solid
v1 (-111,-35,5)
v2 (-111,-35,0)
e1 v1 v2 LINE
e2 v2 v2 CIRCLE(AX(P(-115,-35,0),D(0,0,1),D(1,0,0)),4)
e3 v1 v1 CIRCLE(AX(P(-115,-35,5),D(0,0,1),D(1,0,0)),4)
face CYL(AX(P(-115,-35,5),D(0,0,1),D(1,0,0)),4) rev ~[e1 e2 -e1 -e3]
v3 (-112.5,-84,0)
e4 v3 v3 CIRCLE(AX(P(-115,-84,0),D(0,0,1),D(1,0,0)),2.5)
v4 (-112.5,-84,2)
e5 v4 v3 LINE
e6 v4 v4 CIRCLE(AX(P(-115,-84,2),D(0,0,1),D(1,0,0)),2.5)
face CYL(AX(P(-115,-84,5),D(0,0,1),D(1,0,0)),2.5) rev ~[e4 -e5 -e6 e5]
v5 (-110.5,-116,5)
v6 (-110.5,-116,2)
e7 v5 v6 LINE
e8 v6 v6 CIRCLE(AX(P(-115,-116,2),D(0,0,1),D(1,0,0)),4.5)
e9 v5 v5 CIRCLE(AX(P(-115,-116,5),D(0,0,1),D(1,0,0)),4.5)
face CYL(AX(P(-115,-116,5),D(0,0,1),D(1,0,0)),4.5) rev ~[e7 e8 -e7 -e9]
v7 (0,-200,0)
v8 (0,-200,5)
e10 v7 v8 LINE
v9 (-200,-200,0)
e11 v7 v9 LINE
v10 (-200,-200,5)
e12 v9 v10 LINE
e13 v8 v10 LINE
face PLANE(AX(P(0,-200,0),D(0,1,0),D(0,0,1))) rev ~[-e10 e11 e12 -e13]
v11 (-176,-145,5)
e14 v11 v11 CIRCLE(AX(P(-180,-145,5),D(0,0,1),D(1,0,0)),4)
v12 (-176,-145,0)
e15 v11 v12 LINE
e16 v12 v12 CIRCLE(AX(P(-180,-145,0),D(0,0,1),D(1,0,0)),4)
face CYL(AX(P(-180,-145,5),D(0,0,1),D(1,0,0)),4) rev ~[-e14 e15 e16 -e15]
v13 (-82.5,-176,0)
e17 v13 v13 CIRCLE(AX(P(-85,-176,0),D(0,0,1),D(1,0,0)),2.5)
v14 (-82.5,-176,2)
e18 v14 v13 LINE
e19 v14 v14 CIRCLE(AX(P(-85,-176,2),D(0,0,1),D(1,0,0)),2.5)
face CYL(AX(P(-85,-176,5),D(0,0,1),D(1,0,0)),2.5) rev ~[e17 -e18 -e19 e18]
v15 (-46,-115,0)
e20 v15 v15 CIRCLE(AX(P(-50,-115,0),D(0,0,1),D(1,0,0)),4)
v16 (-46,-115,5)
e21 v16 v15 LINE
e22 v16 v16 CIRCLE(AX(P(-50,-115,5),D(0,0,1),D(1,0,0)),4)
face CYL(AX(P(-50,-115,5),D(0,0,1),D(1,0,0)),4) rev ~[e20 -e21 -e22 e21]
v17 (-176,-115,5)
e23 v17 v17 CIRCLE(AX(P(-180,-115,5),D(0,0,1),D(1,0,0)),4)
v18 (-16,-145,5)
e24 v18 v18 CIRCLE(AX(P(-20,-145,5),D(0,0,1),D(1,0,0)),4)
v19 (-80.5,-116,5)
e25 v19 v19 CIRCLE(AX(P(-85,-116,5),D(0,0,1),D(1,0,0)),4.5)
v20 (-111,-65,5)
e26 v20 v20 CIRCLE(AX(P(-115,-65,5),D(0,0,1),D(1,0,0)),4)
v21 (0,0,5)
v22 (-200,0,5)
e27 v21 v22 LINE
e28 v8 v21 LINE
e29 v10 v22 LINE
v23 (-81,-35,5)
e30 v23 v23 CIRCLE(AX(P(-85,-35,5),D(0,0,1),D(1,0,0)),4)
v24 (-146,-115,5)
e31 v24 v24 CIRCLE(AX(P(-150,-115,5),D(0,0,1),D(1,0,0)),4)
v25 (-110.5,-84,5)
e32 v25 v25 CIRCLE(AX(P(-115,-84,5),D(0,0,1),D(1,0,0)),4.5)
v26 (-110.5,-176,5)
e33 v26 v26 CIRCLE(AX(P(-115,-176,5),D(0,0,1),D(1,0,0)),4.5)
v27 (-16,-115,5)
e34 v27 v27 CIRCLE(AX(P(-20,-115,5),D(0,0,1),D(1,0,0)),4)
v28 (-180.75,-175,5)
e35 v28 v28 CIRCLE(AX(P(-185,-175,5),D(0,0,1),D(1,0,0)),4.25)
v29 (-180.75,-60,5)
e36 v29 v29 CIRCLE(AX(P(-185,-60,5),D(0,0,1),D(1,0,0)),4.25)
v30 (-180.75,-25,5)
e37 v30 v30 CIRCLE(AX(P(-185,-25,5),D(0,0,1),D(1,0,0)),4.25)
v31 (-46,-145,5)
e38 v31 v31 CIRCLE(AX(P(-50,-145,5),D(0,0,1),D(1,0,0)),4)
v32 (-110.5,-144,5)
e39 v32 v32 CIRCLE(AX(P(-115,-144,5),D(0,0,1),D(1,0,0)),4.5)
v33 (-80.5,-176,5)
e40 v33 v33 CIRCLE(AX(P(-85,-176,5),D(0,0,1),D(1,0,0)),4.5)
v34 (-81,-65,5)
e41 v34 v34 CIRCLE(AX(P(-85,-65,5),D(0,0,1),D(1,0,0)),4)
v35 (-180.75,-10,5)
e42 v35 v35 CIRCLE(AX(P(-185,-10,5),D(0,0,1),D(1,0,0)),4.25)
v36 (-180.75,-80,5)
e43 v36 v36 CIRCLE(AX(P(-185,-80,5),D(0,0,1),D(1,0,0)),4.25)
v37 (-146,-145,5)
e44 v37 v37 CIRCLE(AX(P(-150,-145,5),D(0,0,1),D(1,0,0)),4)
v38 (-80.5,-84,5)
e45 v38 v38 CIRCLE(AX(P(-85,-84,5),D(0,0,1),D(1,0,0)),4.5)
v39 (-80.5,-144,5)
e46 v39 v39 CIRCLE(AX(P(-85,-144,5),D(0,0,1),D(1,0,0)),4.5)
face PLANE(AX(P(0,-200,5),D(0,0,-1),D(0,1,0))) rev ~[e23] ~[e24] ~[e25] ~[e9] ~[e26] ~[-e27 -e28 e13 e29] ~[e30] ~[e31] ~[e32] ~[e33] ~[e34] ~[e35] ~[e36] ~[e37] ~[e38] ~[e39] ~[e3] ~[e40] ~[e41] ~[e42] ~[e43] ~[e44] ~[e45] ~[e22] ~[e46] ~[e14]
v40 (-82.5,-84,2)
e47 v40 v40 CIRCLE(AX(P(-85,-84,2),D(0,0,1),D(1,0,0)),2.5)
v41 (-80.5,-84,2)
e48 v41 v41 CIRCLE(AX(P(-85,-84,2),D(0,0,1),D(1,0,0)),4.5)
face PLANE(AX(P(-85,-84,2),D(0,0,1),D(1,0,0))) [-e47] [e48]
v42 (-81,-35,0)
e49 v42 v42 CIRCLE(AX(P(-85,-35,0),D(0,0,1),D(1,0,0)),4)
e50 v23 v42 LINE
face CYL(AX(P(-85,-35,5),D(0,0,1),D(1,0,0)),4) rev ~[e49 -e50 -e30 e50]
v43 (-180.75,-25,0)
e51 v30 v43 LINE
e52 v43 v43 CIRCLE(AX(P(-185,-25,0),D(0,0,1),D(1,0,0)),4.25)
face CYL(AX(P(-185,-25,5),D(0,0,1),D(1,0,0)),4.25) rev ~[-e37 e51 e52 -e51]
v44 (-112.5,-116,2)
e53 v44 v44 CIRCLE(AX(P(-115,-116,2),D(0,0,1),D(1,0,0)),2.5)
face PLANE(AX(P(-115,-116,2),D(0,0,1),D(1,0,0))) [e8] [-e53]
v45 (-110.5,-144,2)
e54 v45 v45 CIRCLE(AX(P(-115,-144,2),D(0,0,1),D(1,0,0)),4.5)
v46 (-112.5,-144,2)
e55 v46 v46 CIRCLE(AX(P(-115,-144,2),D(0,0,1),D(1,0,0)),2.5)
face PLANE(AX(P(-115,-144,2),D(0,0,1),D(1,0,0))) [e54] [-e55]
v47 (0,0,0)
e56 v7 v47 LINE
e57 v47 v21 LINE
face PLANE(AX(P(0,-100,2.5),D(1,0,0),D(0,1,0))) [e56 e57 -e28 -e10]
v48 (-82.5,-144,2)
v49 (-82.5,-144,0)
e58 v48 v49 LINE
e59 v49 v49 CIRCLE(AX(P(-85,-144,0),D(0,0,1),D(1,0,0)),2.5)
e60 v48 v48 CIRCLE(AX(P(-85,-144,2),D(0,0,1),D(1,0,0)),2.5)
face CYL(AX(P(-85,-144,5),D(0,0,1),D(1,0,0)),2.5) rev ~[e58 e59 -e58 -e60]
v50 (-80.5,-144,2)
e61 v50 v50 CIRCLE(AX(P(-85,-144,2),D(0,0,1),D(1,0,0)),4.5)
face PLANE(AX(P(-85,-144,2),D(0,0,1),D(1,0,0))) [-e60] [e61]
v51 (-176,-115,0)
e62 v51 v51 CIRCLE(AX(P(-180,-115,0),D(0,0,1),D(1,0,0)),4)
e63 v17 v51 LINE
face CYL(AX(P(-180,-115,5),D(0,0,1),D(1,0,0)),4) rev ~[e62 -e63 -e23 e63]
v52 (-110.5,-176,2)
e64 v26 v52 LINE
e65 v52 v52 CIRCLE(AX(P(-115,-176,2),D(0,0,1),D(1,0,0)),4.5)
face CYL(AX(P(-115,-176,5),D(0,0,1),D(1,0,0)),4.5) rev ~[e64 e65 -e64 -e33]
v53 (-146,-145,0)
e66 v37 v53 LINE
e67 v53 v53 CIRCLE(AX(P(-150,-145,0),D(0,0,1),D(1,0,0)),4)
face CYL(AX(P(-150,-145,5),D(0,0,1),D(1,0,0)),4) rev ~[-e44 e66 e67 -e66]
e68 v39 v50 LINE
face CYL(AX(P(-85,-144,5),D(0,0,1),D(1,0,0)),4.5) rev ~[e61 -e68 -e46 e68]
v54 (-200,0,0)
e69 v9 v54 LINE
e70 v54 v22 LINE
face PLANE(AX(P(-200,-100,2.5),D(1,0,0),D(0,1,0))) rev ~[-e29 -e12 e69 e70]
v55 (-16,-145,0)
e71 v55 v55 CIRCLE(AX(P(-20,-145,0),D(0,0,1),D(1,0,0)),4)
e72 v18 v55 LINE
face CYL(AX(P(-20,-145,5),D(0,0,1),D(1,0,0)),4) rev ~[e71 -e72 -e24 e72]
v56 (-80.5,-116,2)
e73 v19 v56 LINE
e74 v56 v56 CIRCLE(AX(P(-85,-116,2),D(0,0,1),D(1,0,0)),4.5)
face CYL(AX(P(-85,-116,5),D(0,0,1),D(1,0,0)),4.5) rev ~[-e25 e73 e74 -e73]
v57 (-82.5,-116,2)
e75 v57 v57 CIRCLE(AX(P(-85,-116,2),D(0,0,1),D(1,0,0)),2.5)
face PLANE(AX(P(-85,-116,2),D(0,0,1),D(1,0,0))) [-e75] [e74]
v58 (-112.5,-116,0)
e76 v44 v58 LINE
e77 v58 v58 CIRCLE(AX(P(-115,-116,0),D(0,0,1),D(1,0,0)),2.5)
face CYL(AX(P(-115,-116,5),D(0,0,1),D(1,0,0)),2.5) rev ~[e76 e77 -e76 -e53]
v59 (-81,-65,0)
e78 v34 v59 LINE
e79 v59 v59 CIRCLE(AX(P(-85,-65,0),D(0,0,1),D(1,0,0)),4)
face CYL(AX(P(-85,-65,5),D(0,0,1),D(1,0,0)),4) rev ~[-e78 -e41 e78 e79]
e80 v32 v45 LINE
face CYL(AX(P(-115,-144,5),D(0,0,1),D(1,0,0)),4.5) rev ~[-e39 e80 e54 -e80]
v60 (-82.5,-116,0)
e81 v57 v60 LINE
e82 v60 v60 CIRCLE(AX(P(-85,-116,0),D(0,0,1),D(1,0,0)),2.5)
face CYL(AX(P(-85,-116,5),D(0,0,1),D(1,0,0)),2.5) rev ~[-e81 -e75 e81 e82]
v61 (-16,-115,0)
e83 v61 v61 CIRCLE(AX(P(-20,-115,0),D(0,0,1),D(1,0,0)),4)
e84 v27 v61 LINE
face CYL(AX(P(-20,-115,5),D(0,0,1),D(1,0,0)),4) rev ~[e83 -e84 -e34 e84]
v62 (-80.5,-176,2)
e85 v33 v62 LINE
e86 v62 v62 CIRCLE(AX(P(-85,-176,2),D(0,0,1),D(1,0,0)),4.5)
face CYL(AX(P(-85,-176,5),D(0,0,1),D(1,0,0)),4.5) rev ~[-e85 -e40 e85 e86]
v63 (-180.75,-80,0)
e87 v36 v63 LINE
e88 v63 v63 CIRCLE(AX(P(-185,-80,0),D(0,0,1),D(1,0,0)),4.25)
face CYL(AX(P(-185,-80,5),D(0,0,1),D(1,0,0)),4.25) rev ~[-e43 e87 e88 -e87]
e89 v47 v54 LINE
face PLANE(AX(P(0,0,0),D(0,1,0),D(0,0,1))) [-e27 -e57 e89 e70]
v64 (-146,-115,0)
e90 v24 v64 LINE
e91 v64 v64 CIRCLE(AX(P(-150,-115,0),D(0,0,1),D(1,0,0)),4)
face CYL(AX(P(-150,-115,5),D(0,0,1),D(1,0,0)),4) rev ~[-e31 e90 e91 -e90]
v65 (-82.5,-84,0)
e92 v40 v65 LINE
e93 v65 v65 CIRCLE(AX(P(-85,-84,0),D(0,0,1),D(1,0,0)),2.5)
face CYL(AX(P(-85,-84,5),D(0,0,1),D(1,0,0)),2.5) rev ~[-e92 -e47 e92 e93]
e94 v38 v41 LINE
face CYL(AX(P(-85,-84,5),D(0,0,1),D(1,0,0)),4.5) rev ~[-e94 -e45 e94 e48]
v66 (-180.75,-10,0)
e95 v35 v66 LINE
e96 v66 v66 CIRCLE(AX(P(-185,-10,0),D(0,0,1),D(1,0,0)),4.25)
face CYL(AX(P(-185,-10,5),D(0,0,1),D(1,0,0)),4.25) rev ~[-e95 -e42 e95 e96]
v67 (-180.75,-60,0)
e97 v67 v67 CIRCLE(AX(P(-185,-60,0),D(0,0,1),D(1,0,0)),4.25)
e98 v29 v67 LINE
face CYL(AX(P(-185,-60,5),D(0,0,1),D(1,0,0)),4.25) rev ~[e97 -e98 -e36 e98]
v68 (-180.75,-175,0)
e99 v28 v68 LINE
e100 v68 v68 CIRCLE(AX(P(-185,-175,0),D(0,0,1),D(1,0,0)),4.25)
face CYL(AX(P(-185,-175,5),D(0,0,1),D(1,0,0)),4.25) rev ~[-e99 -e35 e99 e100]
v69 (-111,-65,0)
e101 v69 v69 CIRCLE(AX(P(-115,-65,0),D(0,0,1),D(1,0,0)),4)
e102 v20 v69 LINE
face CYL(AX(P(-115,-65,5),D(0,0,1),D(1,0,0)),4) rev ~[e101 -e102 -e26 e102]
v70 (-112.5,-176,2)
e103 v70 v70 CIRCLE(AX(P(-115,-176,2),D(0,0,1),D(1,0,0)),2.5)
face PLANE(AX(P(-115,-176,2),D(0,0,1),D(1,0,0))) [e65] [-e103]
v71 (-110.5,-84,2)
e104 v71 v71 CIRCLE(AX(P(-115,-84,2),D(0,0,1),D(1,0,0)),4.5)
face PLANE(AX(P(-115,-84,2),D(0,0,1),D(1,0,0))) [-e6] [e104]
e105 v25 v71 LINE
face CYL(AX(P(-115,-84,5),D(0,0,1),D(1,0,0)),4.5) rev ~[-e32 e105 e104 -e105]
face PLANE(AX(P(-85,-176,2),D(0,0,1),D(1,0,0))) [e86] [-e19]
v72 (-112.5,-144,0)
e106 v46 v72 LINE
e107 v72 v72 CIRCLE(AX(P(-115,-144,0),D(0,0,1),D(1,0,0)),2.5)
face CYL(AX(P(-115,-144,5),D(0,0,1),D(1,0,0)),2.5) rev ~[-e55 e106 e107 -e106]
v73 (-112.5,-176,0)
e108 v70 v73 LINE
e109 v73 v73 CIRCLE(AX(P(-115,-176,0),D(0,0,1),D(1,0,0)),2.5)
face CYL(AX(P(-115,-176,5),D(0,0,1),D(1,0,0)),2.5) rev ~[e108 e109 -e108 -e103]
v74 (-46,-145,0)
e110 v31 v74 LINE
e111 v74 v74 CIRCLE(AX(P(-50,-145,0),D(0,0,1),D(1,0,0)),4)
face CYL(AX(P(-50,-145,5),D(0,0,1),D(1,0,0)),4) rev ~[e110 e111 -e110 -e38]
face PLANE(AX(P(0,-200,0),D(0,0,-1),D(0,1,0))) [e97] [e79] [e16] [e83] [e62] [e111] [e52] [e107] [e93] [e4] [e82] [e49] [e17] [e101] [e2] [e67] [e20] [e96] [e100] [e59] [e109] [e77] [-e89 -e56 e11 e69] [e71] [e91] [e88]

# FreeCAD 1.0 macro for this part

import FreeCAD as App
import Part
import Sketcher

V = App.Vector


def add_polygon(sketch, points):
    """Adds a closed chain of lines whose ends are joined by coincident constraints."""
    first, n = sketch.GeometryCount, len(points)
    for a, b in zip(points, points[1:] + points[:1]):
        sketch.addGeometry(Part.LineSegment(App.Vector(*a, 0), App.Vector(*b, 0)), False)
    for i in range(n):
        sketch.addConstraint(Sketcher.Constraint("Coincident", first + i, 2, first + (i + 1) % n, 1))

doc = App.newDocument("Part")
body = doc.addObject("PartDesign::Body", "Body")

# Sketch on YZ plane
sketch1 = body.newObject("Sketcher::SketchObject", "Sketch")
sketch1.AttachmentSupport = (doc.getObject("YZ_Plane"), [""])
sketch1.MapMode = "FlatFace"
add_polygon(sketch1, [(-200, 5), (-200, 0), (0, 0), (0, 5)])  # lines 0-3
sketch1.addConstraint([
    Sketcher.Constraint("Vertical", 0),
    Sketcher.Constraint("Horizontal", 1),
    Sketcher.Constraint("Vertical", 2),
    Sketcher.Constraint("Horizontal", 3),
    Sketcher.Constraint("Coincident", 1, 2, -1, 1),
    Sketcher.Constraint("DistanceX", 1, 1, 1, 2, 200.0),
    Sketcher.Constraint("DistanceY", 0, 2, 0, 1, 5.0),
])
pad1 = body.newObject("PartDesign::Pad", "Pad")
pad1.Profile = sketch1
pad1.Length = 200
pad1.Reversed = True

# Sketch on XY plane
sketch2 = body.newObject("Sketcher::SketchObject", "Sketch001")
sketch2.AttachmentSupport = (doc.getObject("XY_Plane"), [""])
sketch2.MapMode = "FlatFace"
sketch2.AttachmentOffset = App.Placement(V(0, 0, 5), App.Rotation())
sketch2.addGeometry([
    Part.Circle(V(-85, -84, 0), V(0, 0, 1), 2.5),  # 0
    Part.Circle(V(-115, -84, 0), V(0, 0, 1), 2.5),  # 1
    Part.Circle(V(-85, -116, 0), V(0, 0, 1), 2.5),  # 2
    Part.Circle(V(-115, -116, 0), V(0, 0, 1), 2.5),  # 3
    Part.Circle(V(-85, -144, 0), V(0, 0, 1), 2.5),  # 4
    Part.Circle(V(-115, -144, 0), V(0, 0, 1), 2.5),  # 5
    Part.Circle(V(-85, -176, 0), V(0, 0, 1), 2.5),  # 6
    Part.Circle(V(-115, -176, 0), V(0, 0, 1), 2.5),  # 7
], False)
sketch2.addConstraint([
    Sketcher.Constraint("Equal", 0, 1),
    Sketcher.Constraint("Equal", 1, 2),
    Sketcher.Constraint("Equal", 2, 3),
    Sketcher.Constraint("Equal", 3, 4),
    Sketcher.Constraint("Equal", 4, 5),
    Sketcher.Constraint("Equal", 5, 6),
    Sketcher.Constraint("Equal", 6, 7),
    Sketcher.Constraint("Horizontal", 0, 3, 1, 3),
    Sketcher.Constraint("Horizontal", 2, 3, 3, 3),
    Sketcher.Constraint("Horizontal", 4, 3, 5, 3),
    Sketcher.Constraint("Horizontal", 6, 3, 7, 3),
    Sketcher.Constraint("Vertical", 0, 3, 2, 3),
    Sketcher.Constraint("Vertical", 1, 3, 3, 3),
    Sketcher.Constraint("Vertical", 2, 3, 4, 3),
    Sketcher.Constraint("Vertical", 3, 3, 5, 3),
    Sketcher.Constraint("Vertical", 4, 3, 6, 3),
    Sketcher.Constraint("Vertical", 5, 3, 7, 3),
    Sketcher.Constraint("Diameter", 0, 5.0),
    Sketcher.Constraint("DistanceX", 0, 3, -1, 1, 85.0),
    Sketcher.Constraint("DistanceY", 0, 3, -1, 1, 84.0),
    Sketcher.Constraint("DistanceX", 1, 3, -1, 1, 115.0),
    Sketcher.Constraint("DistanceY", 2, 3, -1, 1, 116.0),
    Sketcher.Constraint("DistanceY", 4, 3, -1, 1, 144.0),
    Sketcher.Constraint("DistanceY", 6, 3, -1, 1, 176.0),
])
pocket1 = body.newObject("PartDesign::Pocket", "Pocket")
pocket1.Profile = sketch2
pocket1.Type = "ThroughAll"

# Sketch on XY plane
sketch3 = body.newObject("Sketcher::SketchObject", "Sketch002")
sketch3.AttachmentSupport = (doc.getObject("XY_Plane"), [""])
sketch3.MapMode = "FlatFace"
sketch3.AttachmentOffset = App.Placement(V(0, 0, 5), App.Rotation())
sketch3.addGeometry([
    Part.Circle(V(-185, -25, 0), V(0, 0, 1), 4.2),  # 0
    Part.Circle(V(-185, -60, 0), V(0, 0, 1), 4.2),  # 1
    Part.Circle(V(-185, -10, 0), V(0, 0, 1), 4.2),  # 2
    Part.Circle(V(-185, -175, 0), V(0, 0, 1), 4.2),  # 3
    Part.Circle(V(-185, -80, 0), V(0, 0, 1), 4.2),  # 4
], False)
sketch3.addConstraint([
    Sketcher.Constraint("Equal", 0, 1),
    Sketcher.Constraint("Equal", 1, 2),
    Sketcher.Constraint("Equal", 2, 3),
    Sketcher.Constraint("Equal", 3, 4),
    Sketcher.Constraint("Vertical", 0, 3, 1, 3),
    Sketcher.Constraint("Vertical", 1, 3, 2, 3),
    Sketcher.Constraint("Vertical", 2, 3, 3, 3),
    Sketcher.Constraint("Vertical", 3, 3, 4, 3),
    Sketcher.Constraint("Diameter", 0, 8.5),
    Sketcher.Constraint("DistanceX", 0, 3, -1, 1, 185.0),
    Sketcher.Constraint("DistanceY", 0, 3, -1, 1, 25.0),
    Sketcher.Constraint("DistanceY", 1, 3, -1, 1, 60.0),
    Sketcher.Constraint("DistanceY", 2, 3, -1, 1, 10.0),
    Sketcher.Constraint("DistanceY", 3, 3, -1, 1, 175.0),
    Sketcher.Constraint("DistanceY", 4, 3, -1, 1, 80.0),
])
pocket2 = body.newObject("PartDesign::Pocket", "Pocket001")
pocket2.Profile = sketch3
pocket2.Type = "ThroughAll"

# Sketch on XY plane
sketch4 = body.newObject("Sketcher::SketchObject", "Sketch003")
sketch4.AttachmentSupport = (doc.getObject("XY_Plane"), [""])
sketch4.MapMode = "FlatFace"
sketch4.AttachmentOffset = App.Placement(V(0, 0, 5), App.Rotation())
sketch4.addGeometry([
    Part.Circle(V(-115, -84, 0), V(0, 0, 1), 4.5),  # 0
    Part.Circle(V(-85, -84, 0), V(0, 0, 1), 4.5),  # 1
    Part.Circle(V(-115, -116, 0), V(0, 0, 1), 4.5),  # 2
    Part.Circle(V(-85, -116, 0), V(0, 0, 1), 4.5),  # 3
    Part.Circle(V(-115, -144, 0), V(0, 0, 1), 4.5),  # 4
    Part.Circle(V(-85, -144, 0), V(0, 0, 1), 4.5),  # 5
    Part.Circle(V(-115, -176, 0), V(0, 0, 1), 4.5),  # 6
    Part.Circle(V(-85, -176, 0), V(0, 0, 1), 4.5),  # 7
], False)
sketch4.addConstraint([
    Sketcher.Constraint("Equal", 0, 1),
    Sketcher.Constraint("Equal", 1, 2),
    Sketcher.Constraint("Equal", 2, 3),
    Sketcher.Constraint("Equal", 3, 4),
    Sketcher.Constraint("Equal", 4, 5),
    Sketcher.Constraint("Equal", 5, 6),
    Sketcher.Constraint("Equal", 6, 7),
    Sketcher.Constraint("Horizontal", 0, 3, 1, 3),
    Sketcher.Constraint("Horizontal", 2, 3, 3, 3),
    Sketcher.Constraint("Horizontal", 4, 3, 5, 3),
    Sketcher.Constraint("Horizontal", 6, 3, 7, 3),
    Sketcher.Constraint("Vertical", 0, 3, 2, 3),
    Sketcher.Constraint("Vertical", 1, 3, 3, 3),
    Sketcher.Constraint("Vertical", 2, 3, 4, 3),
    Sketcher.Constraint("Vertical", 3, 3, 5, 3),
    Sketcher.Constraint("Vertical", 4, 3, 6, 3),
    Sketcher.Constraint("Vertical", 5, 3, 7, 3),
    Sketcher.Constraint("Diameter", 0, 9.0),
    Sketcher.Constraint("DistanceX", 0, 3, -1, 1, 115.0),
    Sketcher.Constraint("DistanceY", 0, 3, -1, 1, 84.0),
    Sketcher.Constraint("DistanceX", 1, 3, -1, 1, 85.0),
    Sketcher.Constraint("DistanceY", 2, 3, -1, 1, 116.0),
    Sketcher.Constraint("DistanceY", 4, 3, -1, 1, 144.0),
    Sketcher.Constraint("DistanceY", 6, 3, -1, 1, 176.0),
])
pocket3 = body.newObject("PartDesign::Pocket", "Pocket002")
pocket3.Profile = sketch4
pocket3.Length = 3

# Sketch on XY plane
sketch5 = body.newObject("Sketcher::SketchObject", "Sketch004")
sketch5.AttachmentSupport = (doc.getObject("XY_Plane"), [""])
sketch5.MapMode = "FlatFace"
sketch5.AttachmentOffset = App.Placement(V(0, 0, 5), App.Rotation())
sketch5.addGeometry([
    Part.Circle(V(-150, -145, 0), V(0, 0, 1), 4),  # 0
    Part.Circle(V(-180, -145, 0), V(0, 0, 1), 4),  # 1
    Part.Circle(V(-20, -145, 0), V(0, 0, 1), 4),  # 2
    Part.Circle(V(-50, -145, 0), V(0, 0, 1), 4),  # 3
    Part.Circle(V(-20, -115, 0), V(0, 0, 1), 4),  # 4
    Part.Circle(V(-50, -115, 0), V(0, 0, 1), 4),  # 5
    Part.Circle(V(-150, -115, 0), V(0, 0, 1), 4),  # 6
    Part.Circle(V(-180, -115, 0), V(0, 0, 1), 4),  # 7
    Part.Circle(V(-85, -65, 0), V(0, 0, 1), 4),  # 8
    Part.Circle(V(-85, -35, 0), V(0, 0, 1), 4),  # 9
    Part.Circle(V(-115, -35, 0), V(0, 0, 1), 4),  # 10
    Part.Circle(V(-115, -65, 0), V(0, 0, 1), 4),  # 11
], False)
sketch5.addConstraint([
    Sketcher.Constraint("Equal", 0, 1),
    Sketcher.Constraint("Equal", 1, 2),
    Sketcher.Constraint("Equal", 2, 3),
    Sketcher.Constraint("Equal", 3, 4),
    Sketcher.Constraint("Equal", 4, 5),
    Sketcher.Constraint("Equal", 5, 6),
    Sketcher.Constraint("Equal", 6, 7),
    Sketcher.Constraint("Equal", 7, 8),
    Sketcher.Constraint("Equal", 8, 9),
    Sketcher.Constraint("Equal", 9, 10),
    Sketcher.Constraint("Equal", 10, 11),
    Sketcher.Constraint("Horizontal", 0, 3, 1, 3),
    Sketcher.Constraint("Horizontal", 1, 3, 2, 3),
    Sketcher.Constraint("Horizontal", 2, 3, 3, 3),
    Sketcher.Constraint("Horizontal", 4, 3, 5, 3),
    Sketcher.Constraint("Horizontal", 5, 3, 6, 3),
    Sketcher.Constraint("Horizontal", 6, 3, 7, 3),
    Sketcher.Constraint("Horizontal", 9, 3, 10, 3),
    Sketcher.Constraint("Horizontal", 8, 3, 11, 3),
    Sketcher.Constraint("Vertical", 2, 3, 4, 3),
    Sketcher.Constraint("Vertical", 3, 3, 5, 3),
    Sketcher.Constraint("Vertical", 0, 3, 6, 3),
    Sketcher.Constraint("Vertical", 1, 3, 7, 3),
    Sketcher.Constraint("Vertical", 8, 3, 9, 3),
    Sketcher.Constraint("Vertical", 10, 3, 11, 3),
    Sketcher.Constraint("Diameter", 0, 8.0),
    Sketcher.Constraint("DistanceX", 0, 3, -1, 1, 150.0),
    Sketcher.Constraint("DistanceY", 0, 3, -1, 1, 145.0),
    Sketcher.Constraint("DistanceX", 1, 3, -1, 1, 180.0),
    Sketcher.Constraint("DistanceX", 2, 3, -1, 1, 20.0),
    Sketcher.Constraint("DistanceX", 3, 3, -1, 1, 50.0),
    Sketcher.Constraint("DistanceY", 4, 3, -1, 1, 115.0),
    Sketcher.Constraint("DistanceX", 8, 3, -1, 1, 85.0),
    Sketcher.Constraint("DistanceY", 8, 3, -1, 1, 65.0),
    Sketcher.Constraint("DistanceY", 9, 3, -1, 1, 35.0),
    Sketcher.Constraint("DistanceX", 10, 3, -1, 1, 115.0),
])
pocket4 = body.newObject("PartDesign::Pocket", "Pocket003")
pocket4.Profile = sketch5
pocket4.Length = 25

doc.recompute()
